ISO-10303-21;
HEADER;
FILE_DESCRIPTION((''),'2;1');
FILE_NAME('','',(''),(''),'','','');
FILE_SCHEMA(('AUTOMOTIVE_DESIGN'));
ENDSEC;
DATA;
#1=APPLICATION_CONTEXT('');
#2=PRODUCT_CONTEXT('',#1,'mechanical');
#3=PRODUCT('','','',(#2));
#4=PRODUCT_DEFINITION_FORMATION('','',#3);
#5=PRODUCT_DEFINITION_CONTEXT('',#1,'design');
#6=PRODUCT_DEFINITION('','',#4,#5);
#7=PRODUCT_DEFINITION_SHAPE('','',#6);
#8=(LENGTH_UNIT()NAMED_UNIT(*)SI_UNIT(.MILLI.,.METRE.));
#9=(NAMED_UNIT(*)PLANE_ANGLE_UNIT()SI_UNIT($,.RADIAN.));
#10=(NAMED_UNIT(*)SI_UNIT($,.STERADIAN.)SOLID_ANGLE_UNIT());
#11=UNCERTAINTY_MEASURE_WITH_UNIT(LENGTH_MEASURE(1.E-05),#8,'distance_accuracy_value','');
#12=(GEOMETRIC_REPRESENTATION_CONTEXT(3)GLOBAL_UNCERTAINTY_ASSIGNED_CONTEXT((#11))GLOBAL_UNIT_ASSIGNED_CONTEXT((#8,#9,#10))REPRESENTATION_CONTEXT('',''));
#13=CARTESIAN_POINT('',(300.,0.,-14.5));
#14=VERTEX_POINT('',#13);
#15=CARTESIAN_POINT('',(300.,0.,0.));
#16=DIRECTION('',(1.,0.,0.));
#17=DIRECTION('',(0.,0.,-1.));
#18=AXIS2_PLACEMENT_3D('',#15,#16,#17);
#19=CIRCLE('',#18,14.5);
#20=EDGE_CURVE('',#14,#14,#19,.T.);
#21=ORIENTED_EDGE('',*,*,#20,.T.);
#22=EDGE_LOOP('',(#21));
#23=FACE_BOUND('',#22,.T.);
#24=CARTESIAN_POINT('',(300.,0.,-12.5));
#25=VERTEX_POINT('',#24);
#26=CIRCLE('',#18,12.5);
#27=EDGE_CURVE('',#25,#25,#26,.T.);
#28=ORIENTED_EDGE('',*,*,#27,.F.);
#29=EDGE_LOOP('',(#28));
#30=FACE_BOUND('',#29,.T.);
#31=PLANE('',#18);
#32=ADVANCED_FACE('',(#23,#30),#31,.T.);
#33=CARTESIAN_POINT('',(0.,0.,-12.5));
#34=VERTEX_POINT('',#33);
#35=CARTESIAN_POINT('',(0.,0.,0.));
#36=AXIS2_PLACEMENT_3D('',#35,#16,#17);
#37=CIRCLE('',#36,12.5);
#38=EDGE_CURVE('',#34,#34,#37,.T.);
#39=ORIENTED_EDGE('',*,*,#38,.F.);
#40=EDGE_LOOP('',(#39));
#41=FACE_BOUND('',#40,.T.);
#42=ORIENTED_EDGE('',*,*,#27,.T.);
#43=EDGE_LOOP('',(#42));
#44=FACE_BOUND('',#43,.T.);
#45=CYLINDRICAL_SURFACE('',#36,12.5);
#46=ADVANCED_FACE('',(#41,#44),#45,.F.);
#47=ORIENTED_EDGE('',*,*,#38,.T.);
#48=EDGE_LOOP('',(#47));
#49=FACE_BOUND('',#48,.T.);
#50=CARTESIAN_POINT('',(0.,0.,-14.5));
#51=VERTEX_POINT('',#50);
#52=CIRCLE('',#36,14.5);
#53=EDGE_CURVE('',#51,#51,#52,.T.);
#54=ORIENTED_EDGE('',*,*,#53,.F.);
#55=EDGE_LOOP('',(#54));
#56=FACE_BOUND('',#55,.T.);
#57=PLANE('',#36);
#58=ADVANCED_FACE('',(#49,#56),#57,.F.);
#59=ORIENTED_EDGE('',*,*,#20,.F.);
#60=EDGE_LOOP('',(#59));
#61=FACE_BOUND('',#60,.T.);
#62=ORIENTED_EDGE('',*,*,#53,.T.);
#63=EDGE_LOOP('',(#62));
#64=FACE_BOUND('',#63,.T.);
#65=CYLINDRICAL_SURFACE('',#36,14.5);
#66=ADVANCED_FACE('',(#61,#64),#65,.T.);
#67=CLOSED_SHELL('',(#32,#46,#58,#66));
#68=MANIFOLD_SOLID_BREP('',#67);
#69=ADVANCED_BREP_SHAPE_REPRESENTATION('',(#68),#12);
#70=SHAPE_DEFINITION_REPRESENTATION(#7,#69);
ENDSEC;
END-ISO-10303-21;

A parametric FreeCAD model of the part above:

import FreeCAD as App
import Part
import Sketcher

V = App.Vector
Q = App.Units.Quantity

doc = App.newDocument("Part")
body = doc.addObject("PartDesign::Body", "Body")

sketch1 = body.newObject("Sketcher::SketchObject", "Sketch")
sketch1.AttachmentSupport = (doc.getObject("YZ_Plane"), [""])
sketch1.MapMode = "FlatFace"
sketch1.addGeometry(Part.Circle(V(0, 0, 0), V(0, 0, 1), 14), False)
sketch1.addGeometry(Part.Circle(V(0, 0, 0), V(0, 0, 1), 12), False)
sketch1.addConstraint(Sketcher.Constraint("Coincident", 0, 3, -1, 1))
sketch1.addConstraint(Sketcher.Constraint("Coincident", 1, 3, -1, 1))
sketch1.addConstraint(Sketcher.Constraint("Diameter", 0, Q("29 mm")))
sketch1.addConstraint(Sketcher.Constraint("Diameter", 1, Q("25 mm")))

sketch2 = body.newObject("Sketcher::SketchObject", "Sketch001")
sketch2.AttachmentSupport = (doc.getObject("XY_Plane"), [""])
sketch2.MapMode = "FlatFace"
sketch2.addGeometry(Part.LineSegment(V(0, 0, 0), V(300, 0, 0)), False)
sketch2.addConstraint(Sketcher.Constraint("Horizontal", 0))
sketch2.addConstraint(Sketcher.Constraint("Coincident", 0, 1, -1, 1))
sketch2.addConstraint(Sketcher.Constraint("DistanceX", 0, 1, 0, 2, Q("300 mm")))
doc.recompute()

additivepipe = body.newObject("PartDesign::AdditivePipe", "AdditivePipe")
additivepipe.Profile = sketch1
additivepipe.Spine = (sketch2, ["Edge1"])

doc.recompute()
